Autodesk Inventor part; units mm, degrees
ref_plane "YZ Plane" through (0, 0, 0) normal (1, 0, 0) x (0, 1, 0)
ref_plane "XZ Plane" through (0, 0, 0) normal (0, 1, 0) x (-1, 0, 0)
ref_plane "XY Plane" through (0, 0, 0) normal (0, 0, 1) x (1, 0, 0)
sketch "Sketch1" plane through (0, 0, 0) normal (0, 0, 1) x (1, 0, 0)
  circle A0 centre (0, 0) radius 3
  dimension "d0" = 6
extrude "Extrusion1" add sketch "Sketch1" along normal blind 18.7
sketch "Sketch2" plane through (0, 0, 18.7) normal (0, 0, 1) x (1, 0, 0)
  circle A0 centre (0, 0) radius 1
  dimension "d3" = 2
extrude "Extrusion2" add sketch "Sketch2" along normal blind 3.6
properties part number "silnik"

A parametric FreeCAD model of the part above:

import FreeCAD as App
import Part
import Sketcher

V = App.Vector

doc = App.newDocument("Part")
body = doc.addObject("PartDesign::Body", "Body")

# Sketch on XY plane
sketch1 = doc.addObject("Sketcher::SketchObject", "Sketch")
body.addObject(sketch1)
sketch1.AttachmentSupport = (doc.XY_Plane, [""])
sketch1.MapMode = "FlatFace"
sketch1.addGeometry(Part.Circle(V(0, 0, 0), V(0, 0, 1), 3), False)
sketch1.addConstraint(Sketcher.Constraint("Coincident", 0, 3, -1, 1))
sketch1.addConstraint(Sketcher.Constraint("Diameter", 0, 6.0))
pad1 = doc.addObject("PartDesign::Pad", "Pad")
body.addObject(pad1)
pad1.Profile = sketch1
pad1.Length = 18.7

# Sketch on XY plane
sketch2 = doc.addObject("Sketcher::SketchObject", "Sketch001")
body.addObject(sketch2)
sketch2.AttachmentSupport = (doc.XY_Plane, [""])
sketch2.MapMode = "FlatFace"
sketch2.AttachmentOffset = App.Placement(V(0, 0, 18.7), App.Rotation())
sketch2.addGeometry(Part.Circle(V(0, 0, 0), V(0, 0, 1), 1), False)
sketch2.addConstraint(Sketcher.Constraint("Coincident", 0, 3, -1, 1))
sketch2.addConstraint(Sketcher.Constraint("Diameter", 0, 2.0))
pad2 = doc.addObject("PartDesign::Pad", "Pad001")
body.addObject(pad2)
pad2.Profile = sketch2
pad2.Length = 3.6

doc.recompute()
